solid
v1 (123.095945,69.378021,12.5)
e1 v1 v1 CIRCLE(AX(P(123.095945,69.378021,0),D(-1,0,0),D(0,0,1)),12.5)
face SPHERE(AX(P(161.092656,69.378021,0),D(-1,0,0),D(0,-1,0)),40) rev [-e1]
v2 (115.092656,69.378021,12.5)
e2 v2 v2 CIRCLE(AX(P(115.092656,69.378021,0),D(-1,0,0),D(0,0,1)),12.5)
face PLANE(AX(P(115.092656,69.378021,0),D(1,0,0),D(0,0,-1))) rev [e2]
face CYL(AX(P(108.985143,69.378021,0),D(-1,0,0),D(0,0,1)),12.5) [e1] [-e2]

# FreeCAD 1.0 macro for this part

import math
import FreeCAD as App
import Part
import Sketcher
from FreeCAD import Vector

doc = App.newDocument("Part")
body = doc.addObject("PartDesign::Body", "Body")

sketch1 = doc.addObject("Sketcher::SketchObject", "Sketch")
body.addObject(sketch1)
sketch1.AttachmentSupport = (doc.XY_Plane, [""])
sketch1.MapMode = "FlatFace"
sketch1.addGeometry([
    Part.LineSegment(Vector(115.092656, 81.878021, 0), Vector(115.092656, 69.378021, 0)),
    Part.LineSegment(Vector(115.092656, 69.378021, 0), Vector(121.092656, 69.378021, 0)),
    Part.ArcOfCircle(Part.Circle(Vector(161.092656, 69.378021, 0), Vector(0, 0, 1), 40), math.radians(161.790043), math.radians(180)),
    Part.LineSegment(Vector(123.095945, 81.878021, 0), Vector(115.092656, 81.878021, 0)),
], False)
sketch1.addGeometry(Part.LineSegment(Vector(115.092656, 69.378021, 0), Vector(161.092656, 69.378021, 0)), True)
sketch1.addConstraint([
    Sketcher.Constraint("Coincident", 0, 2, 1, 1),
    Sketcher.Constraint("Coincident", 1, 2, 2, 2),
    Sketcher.Constraint("Coincident", 2, 1, 3, 1),
    Sketcher.Constraint("Coincident", 3, 2, 0, 1),
    Sketcher.Constraint("Vertical", 0),
    Sketcher.Constraint("Horizontal", 1),
    Sketcher.Constraint("Horizontal", 3),
    Sketcher.Constraint("Horizontal", 4),
    Sketcher.Constraint("Coincident", 4, 1, 0, 2),
    Sketcher.Constraint("Coincident", 4, 2, 2, 3),
    Sketcher.Constraint("Radius", 2, 40.0),
    Sketcher.Constraint("DistanceX", 1, 1, 1, 2, 6.0),
    Sketcher.Constraint("DistanceY", 0, 2, 0, 1, 12.5),
    Sketcher.Constraint("DistanceY", -1, 1, 2, 3, 69.378021),
    Sketcher.Constraint("DistanceX", -1, 1, 2, 3, 161.092656),
])
revolution = doc.addObject("PartDesign::Revolution", "Revolution")
body.addObject(revolution)
revolution.Profile = sketch1
revolution.ReferenceAxis = (sketch1, ["Axis0"])
revolution.Angle = 360

doc.recompute()
